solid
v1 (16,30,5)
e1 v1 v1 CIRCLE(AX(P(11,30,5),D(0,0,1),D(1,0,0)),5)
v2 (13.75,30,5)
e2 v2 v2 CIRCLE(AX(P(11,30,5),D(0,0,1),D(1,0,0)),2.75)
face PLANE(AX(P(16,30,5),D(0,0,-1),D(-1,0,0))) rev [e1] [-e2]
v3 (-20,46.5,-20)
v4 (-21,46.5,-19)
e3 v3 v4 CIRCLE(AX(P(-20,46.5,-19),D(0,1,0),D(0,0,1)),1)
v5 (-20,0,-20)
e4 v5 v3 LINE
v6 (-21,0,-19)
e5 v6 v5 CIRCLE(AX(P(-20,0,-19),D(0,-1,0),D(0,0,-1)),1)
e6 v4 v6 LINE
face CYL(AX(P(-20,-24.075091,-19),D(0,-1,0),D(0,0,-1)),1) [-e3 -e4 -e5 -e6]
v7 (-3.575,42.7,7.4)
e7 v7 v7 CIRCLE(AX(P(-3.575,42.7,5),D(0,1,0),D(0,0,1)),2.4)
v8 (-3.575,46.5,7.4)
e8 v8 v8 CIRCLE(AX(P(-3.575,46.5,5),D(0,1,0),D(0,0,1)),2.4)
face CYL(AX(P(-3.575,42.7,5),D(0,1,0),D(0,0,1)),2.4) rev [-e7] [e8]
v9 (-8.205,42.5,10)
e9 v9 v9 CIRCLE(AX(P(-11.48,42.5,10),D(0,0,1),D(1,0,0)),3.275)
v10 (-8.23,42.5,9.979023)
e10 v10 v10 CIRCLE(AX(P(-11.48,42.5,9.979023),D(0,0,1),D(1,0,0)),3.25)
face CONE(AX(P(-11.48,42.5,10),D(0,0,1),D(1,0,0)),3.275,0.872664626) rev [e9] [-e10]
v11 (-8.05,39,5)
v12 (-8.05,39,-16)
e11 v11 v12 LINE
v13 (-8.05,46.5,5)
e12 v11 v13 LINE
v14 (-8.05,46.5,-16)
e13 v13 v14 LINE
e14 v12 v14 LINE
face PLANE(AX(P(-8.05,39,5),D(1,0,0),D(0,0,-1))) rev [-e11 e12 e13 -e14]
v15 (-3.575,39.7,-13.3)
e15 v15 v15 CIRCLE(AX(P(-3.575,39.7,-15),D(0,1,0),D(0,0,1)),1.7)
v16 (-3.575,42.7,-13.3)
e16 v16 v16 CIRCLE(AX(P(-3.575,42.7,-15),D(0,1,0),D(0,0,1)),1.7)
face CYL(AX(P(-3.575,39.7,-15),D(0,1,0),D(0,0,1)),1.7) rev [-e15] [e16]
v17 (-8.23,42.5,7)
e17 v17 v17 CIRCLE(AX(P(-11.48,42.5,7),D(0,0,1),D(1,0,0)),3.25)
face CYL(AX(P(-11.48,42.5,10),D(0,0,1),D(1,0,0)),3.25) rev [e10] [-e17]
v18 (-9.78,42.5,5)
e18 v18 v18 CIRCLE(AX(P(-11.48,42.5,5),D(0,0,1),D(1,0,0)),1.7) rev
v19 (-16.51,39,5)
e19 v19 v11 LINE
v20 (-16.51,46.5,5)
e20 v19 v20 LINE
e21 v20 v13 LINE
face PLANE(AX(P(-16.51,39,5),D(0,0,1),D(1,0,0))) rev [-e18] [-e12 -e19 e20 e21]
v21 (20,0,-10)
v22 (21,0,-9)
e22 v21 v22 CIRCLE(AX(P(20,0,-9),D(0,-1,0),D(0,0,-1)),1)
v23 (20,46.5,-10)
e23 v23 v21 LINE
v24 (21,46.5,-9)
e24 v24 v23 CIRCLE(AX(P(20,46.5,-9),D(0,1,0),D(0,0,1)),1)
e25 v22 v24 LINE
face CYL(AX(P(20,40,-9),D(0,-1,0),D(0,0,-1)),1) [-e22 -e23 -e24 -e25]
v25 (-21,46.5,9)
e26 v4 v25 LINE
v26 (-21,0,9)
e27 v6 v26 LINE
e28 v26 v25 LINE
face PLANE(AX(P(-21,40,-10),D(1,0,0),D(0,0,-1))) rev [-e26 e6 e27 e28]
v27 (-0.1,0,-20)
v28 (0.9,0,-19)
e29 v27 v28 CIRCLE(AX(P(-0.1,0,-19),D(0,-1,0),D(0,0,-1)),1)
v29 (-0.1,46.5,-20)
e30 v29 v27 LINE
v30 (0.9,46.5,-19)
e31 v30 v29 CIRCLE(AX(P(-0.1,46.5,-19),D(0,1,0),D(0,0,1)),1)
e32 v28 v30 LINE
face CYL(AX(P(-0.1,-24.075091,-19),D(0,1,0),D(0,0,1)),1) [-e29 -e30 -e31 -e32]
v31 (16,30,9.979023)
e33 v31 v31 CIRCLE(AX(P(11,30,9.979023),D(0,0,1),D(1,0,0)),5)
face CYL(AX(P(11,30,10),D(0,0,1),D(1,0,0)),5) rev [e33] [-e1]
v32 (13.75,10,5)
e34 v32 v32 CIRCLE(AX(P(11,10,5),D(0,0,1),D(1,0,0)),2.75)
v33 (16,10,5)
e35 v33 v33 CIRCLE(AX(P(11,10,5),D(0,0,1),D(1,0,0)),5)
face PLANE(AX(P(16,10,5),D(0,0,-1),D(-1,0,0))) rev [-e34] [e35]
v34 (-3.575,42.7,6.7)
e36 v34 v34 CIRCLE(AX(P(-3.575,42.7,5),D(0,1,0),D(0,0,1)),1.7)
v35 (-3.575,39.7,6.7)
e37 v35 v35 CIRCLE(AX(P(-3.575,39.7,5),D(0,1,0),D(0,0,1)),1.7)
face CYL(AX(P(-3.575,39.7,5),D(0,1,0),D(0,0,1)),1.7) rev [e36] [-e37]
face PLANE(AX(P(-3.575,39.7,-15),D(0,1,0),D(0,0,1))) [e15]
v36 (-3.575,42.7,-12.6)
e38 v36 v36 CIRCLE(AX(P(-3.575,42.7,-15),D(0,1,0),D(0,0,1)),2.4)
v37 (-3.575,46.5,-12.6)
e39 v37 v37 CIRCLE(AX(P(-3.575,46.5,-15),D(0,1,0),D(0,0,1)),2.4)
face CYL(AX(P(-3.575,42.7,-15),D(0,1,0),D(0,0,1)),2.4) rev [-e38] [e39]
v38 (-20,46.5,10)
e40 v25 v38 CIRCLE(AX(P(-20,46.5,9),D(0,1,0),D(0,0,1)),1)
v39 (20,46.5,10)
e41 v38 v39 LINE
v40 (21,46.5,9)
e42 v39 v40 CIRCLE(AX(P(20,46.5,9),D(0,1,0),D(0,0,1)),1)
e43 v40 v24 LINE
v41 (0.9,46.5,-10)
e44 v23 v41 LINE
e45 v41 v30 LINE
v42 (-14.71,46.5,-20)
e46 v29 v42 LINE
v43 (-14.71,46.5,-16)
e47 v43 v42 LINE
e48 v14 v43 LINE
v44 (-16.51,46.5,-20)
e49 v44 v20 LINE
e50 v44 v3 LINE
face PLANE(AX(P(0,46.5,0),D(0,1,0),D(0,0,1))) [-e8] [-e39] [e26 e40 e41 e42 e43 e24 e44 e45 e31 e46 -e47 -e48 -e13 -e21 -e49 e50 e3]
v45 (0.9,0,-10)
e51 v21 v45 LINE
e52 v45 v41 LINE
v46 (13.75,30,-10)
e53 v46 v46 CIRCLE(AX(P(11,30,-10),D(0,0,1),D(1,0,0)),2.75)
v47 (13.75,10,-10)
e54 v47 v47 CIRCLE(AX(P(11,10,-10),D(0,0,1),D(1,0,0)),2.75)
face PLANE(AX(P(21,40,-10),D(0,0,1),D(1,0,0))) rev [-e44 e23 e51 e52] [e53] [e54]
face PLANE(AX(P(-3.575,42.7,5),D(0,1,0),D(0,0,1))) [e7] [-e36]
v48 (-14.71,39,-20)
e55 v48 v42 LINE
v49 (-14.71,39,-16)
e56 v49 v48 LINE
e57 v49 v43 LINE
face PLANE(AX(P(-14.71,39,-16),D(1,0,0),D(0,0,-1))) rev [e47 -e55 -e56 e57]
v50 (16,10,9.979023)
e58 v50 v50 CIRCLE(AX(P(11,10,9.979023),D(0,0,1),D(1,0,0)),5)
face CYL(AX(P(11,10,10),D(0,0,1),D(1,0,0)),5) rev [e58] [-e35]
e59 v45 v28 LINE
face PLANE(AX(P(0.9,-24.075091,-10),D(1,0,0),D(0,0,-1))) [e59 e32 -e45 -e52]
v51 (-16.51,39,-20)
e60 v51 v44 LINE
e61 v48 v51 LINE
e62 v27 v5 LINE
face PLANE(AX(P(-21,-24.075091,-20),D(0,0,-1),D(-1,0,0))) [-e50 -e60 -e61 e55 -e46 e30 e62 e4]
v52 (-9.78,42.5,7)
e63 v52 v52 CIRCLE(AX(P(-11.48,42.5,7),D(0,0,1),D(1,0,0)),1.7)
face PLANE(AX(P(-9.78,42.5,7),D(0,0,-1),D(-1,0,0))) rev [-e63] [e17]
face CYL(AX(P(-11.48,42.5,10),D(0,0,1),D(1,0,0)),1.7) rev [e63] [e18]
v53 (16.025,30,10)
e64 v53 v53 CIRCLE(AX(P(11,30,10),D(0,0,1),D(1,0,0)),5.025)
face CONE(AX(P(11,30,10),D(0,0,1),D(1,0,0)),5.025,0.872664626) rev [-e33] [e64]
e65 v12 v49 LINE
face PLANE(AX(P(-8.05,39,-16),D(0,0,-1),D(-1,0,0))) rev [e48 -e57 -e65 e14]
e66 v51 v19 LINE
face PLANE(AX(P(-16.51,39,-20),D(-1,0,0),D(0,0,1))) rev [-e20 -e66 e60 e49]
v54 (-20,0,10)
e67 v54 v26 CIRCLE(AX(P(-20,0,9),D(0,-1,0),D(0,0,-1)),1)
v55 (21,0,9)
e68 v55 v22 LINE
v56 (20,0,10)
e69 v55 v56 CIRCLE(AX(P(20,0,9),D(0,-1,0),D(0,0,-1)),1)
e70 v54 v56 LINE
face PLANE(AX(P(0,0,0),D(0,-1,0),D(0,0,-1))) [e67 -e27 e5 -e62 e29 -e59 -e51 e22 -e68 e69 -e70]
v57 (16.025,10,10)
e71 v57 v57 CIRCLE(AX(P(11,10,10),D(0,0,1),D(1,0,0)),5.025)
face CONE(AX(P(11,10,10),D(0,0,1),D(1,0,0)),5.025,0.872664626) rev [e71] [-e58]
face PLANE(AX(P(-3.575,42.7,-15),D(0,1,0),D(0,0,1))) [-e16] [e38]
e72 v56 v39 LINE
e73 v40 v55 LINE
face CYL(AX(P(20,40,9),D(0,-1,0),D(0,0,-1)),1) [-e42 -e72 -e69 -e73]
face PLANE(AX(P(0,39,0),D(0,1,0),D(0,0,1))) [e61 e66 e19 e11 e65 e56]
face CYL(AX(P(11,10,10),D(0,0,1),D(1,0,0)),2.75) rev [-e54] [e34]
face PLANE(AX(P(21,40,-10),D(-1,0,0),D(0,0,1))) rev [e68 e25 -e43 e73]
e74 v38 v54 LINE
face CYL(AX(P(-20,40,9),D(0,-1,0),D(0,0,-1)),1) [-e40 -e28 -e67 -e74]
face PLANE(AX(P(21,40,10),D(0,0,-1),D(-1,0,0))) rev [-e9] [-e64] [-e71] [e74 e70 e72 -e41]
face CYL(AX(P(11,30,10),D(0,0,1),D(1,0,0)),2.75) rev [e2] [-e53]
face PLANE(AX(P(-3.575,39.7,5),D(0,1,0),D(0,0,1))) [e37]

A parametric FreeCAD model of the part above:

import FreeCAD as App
import Part
import Sketcher
Q = App.Units.Quantity


def edges_at(feature, points):
    """Names of the edges that pass closest to the given points."""
    edges = feature.Shape.Edges
    near = lambda p: min(range(len(edges)), key=lambda i: edges[i].distToShape(Part.Vertex(*p))[0])
    return sorted({f"Edge{near(p) + 1}" for p in points})

doc = App.newDocument("Part")
body = doc.addObject("PartDesign::Body", "Body")

sketch1 = body.newObject("Sketcher::SketchObject", "Sketch")
sketch1.AttachmentSupport = (doc.getObject("XZ_Plane"), [""])
sketch1.MapMode = "FlatFace"
sketch1.addGeometry([
    Part.LineSegment(App.Vector(-21, -10, 0), App.Vector(-21, 10, 0)),
    Part.LineSegment(App.Vector(-21, 10, 0), App.Vector(21, 10, 0)),
    Part.LineSegment(App.Vector(21, 10, 0), App.Vector(21, -10, 0)),
    Part.LineSegment(App.Vector(21, -10, 0), App.Vector(-21, -10, 0)),
], False)
sketch1.addConstraint([
    Sketcher.Constraint("Coincident", 0, 2, 1, 1),
    Sketcher.Constraint("Coincident", 1, 2, 2, 1),
    Sketcher.Constraint("Coincident", 2, 2, 3, 1),
    Sketcher.Constraint("Coincident", 3, 2, 0, 1),
    Sketcher.Constraint("Vertical", 0),
    Sketcher.Constraint("Horizontal", 1),
    Sketcher.Constraint("Vertical", 2),
    Sketcher.Constraint("Horizontal", 3),
    Sketcher.Constraint("Symmetric", 0, 2, 2, 2, -1, 1),
    Sketcher.Constraint("DistanceX", 1, 1, 1, 2, Q("42 mm")),
    Sketcher.Constraint("DistanceY", 0, 1, 0, 2, Q("20 mm")),
])
pad1 = body.newObject("PartDesign::Pad", "Pad")
pad1.Profile = sketch1
pad1.Length = 40
pad1.Reversed = True

sketch2 = body.newObject("Sketcher::SketchObject", "Sketch001")
sketch2.AttachmentSupport = (doc.getObject("YZ_Plane"), [""])
sketch2.MapMode = "FlatFace"
sketch2.AttachmentOffset = App.Placement(App.Vector(0, 0, 11), App.Rotation())
sketch2.addGeometry([
    Part.LineSegment(App.Vector(30, -10, 0), App.Vector(30, 10, 0)),
    Part.LineSegment(App.Vector(30, 10, 0), App.Vector(24.975, 10, 0)),
    Part.LineSegment(App.Vector(24.975, 10, 0), App.Vector(25, 9.979, 0)),
    Part.LineSegment(App.Vector(25, 9.979, 0), App.Vector(25, 5, 0)),
    Part.LineSegment(App.Vector(25, 5, 0), App.Vector(27.25, 5, 0)),
    Part.LineSegment(App.Vector(27.25, 5, 0), App.Vector(27.25, -10, 0)),
    Part.LineSegment(App.Vector(27.25, -10, 0), App.Vector(30, -10, 0)),
], False)
sketch2.addGeometry(Part.LineSegment(App.Vector(30, 10, 0), App.Vector(30, -10, 0)), True)
sketch2.addConstraint([
    Sketcher.Constraint("Coincident", 0, 2, 1, 1),
    Sketcher.Constraint("Coincident", 1, 2, 2, 1),
    Sketcher.Constraint("Coincident", 2, 2, 3, 1),
    Sketcher.Constraint("Coincident", 3, 2, 4, 1),
    Sketcher.Constraint("Coincident", 4, 2, 5, 1),
    Sketcher.Constraint("Coincident", 5, 2, 6, 1),
    Sketcher.Constraint("Coincident", 6, 2, 0, 1),
    Sketcher.Constraint("Vertical", 0),
    Sketcher.Constraint("Horizontal", 1),
    Sketcher.Constraint("Vertical", 3),
    Sketcher.Constraint("Horizontal", 4),
    Sketcher.Constraint("Vertical", 5),
    Sketcher.Constraint("Horizontal", 6),
    Sketcher.Constraint("Vertical", 7),
    Sketcher.Constraint("Coincident", 7, 1, 0, 2),
    Sketcher.Constraint("Horizontal", 5, 2, 7, 2),
    Sketcher.Constraint("DistanceY", 0, 1, 0, 2, Q("20 mm")),
    Sketcher.Constraint("DistanceY", 5, 2, 5, 1, Q("15 mm")),
    Sketcher.Constraint("Angle", 2, Q("-40 deg")),
    Sketcher.Constraint("DistanceX", -1, 1, 0, 2, Q("30 mm")),
    Sketcher.Constraint("DistanceY", -1, 1, 0, 2, Q("10 mm")),
    Sketcher.Constraint("DistanceX", -1, 1, 2, 2, Q("25 mm")),
    Sketcher.Constraint("DistanceX", 4, 1, 4, 2, Q("2.25 mm")),
    Sketcher.Constraint("DistanceX", 1, 2, 1, 1, Q("5.025 mm")),
])
groove = body.newObject("PartDesign::Groove", "Groove")
groove.Profile = sketch2
groove.ReferenceAxis = (sketch2, ["Axis0"])
groove.Angle = 360
doc.recompute()

linearpattern = body.newObject("PartDesign::LinearPattern", "LinearPattern")
linearpattern.Originals = [groove]
linearpattern.Direction = (doc.getObject("Y_Axis"), [""])
linearpattern.Mode = "offset"
linearpattern.Offset = 20
linearpattern.Occurrences = 2
linearpattern.Reversed = True
body.Tip = linearpattern

sketch3 = body.newObject("Sketcher::SketchObject", "Sketch002")
sketch3.AttachmentSupport = (doc.getObject("XZ_Plane"), [""])
sketch3.MapMode = "FlatFace"
sketch3.AttachmentOffset = App.Placement(App.Vector(0, 0, -40), App.Rotation())
sketch3.addGeometry([
    Part.LineSegment(App.Vector(-21, -10, 0), App.Vector(-21, 10, 0)),
    Part.LineSegment(App.Vector(-21, 10, 0), App.Vector(21, 10, 0)),
    Part.LineSegment(App.Vector(21, 10, 0), App.Vector(21, -10, 0)),
    Part.LineSegment(App.Vector(21, -10, 0), App.Vector(-21, -10, 0)),
], False)
sketch3.addConstraint([
    Sketcher.Constraint("Coincident", 0, 2, 1, 1),
    Sketcher.Constraint("Coincident", 1, 2, 2, 1),
    Sketcher.Constraint("Coincident", 2, 2, 3, 1),
    Sketcher.Constraint("Coincident", 3, 2, 0, 1),
    Sketcher.Constraint("Vertical", 0),
    Sketcher.Constraint("Horizontal", 1),
    Sketcher.Constraint("Vertical", 2),
    Sketcher.Constraint("Horizontal", 3),
    Sketcher.Constraint("Symmetric", 0, 2, 2, 2, -1, 1),
    Sketcher.Constraint("DistanceX", 1, 1, 1, 2, Q("42 mm")),
    Sketcher.Constraint("DistanceY", 0, 1, 0, 2, Q("20 mm")),
])
pad2 = body.newObject("PartDesign::Pad", "Pad001")
pad2.Profile = sketch3
pad2.Length = 6.5
pad2.Reversed = True

sketch4 = body.newObject("Sketcher::SketchObject", "Sketch003")
sketch4.AttachmentSupport = (doc.getObject("XZ_Plane"), [""])
sketch4.MapMode = "FlatFace"
sketch4.AttachmentOffset = App.Placement(App.Vector(0, 0, -46.5), App.Rotation())
sketch4.addGeometry([
    Part.LineSegment(App.Vector(-21, -20, 0), App.Vector(-21, -10, 0)),
    Part.LineSegment(App.Vector(-21, -10, 0), App.Vector(1, -10, 0)),
    Part.LineSegment(App.Vector(1, -10, 0), App.Vector(1, -20, 0)),
    Part.LineSegment(App.Vector(1, -20, 0), App.Vector(-21, -20, 0)),
], False)
sketch4.addConstraint([
    Sketcher.Constraint("Coincident", 0, 2, 1, 1),
    Sketcher.Constraint("Coincident", 1, 2, 2, 1),
    Sketcher.Constraint("Coincident", 2, 2, 3, 1),
    Sketcher.Constraint("Coincident", 3, 2, 0, 1),
    Sketcher.Constraint("Vertical", 0),
    Sketcher.Constraint("Horizontal", 1),
    Sketcher.Constraint("Vertical", 2),
    Sketcher.Constraint("Horizontal", 3),
    Sketcher.Constraint("DistanceY", 0, 1, 0, 2, Q("10 mm")),
    Sketcher.Constraint("DistanceX", 1, 1, 1, 2, Q("21.9 mm")),
    Sketcher.Constraint("DistanceX", 0, 2, -1, 1, Q("21 mm")),
    Sketcher.Constraint("DistanceY", 0, 2, -1, 1, Q("10 mm")),
])
pad3 = body.newObject("PartDesign::Pad", "Pad002")
pad3.Profile = sketch4
pad3.Length = 46.5

sketch5 = body.newObject("Sketcher::SketchObject", "Sketch004")
sketch5.AttachmentSupport = (doc.getObject("XZ_Plane"), [""])
sketch5.MapMode = "FlatFace"
sketch5.AttachmentOffset = App.Placement(App.Vector(0, 0, -46.5), App.Rotation())
sketch5.addGeometry([
    Part.LineSegment(App.Vector(-16.5, -20, 0), App.Vector(-16.5, 5, 0)),
    Part.LineSegment(App.Vector(-16.5, 5, 0), App.Vector(-8.1, 5, 0)),
    Part.LineSegment(App.Vector(-8.1, 5, 0), App.Vector(-8.1, -16, 0)),
    Part.LineSegment(App.Vector(-8.1, -16, 0), App.Vector(-14.7, -16, 0)),
    Part.LineSegment(App.Vector(-14.7, -16, 0), App.Vector(-14.7, -20, 0)),
    Part.LineSegment(App.Vector(-14.7, -20, 0), App.Vector(-16.5, -20, 0)),
], False)
sketch5.addConstraint([
    Sketcher.Constraint("Coincident", 0, 2, 1, 1),
    Sketcher.Constraint("Coincident", 1, 2, 2, 1),
    Sketcher.Constraint("Coincident", 2, 2, 3, 1),
    Sketcher.Constraint("Coincident", 3, 2, 4, 1),
    Sketcher.Constraint("Coincident", 4, 2, 5, 1),
    Sketcher.Constraint("Coincident", 5, 2, 0, 1),
    Sketcher.Constraint("Vertical", 0),
    Sketcher.Constraint("Horizontal", 1),
    Sketcher.Constraint("Vertical", 2),
    Sketcher.Constraint("Horizontal", 3),
    Sketcher.Constraint("Vertical", 4),
    Sketcher.Constraint("Horizontal", 5),
    Sketcher.Constraint("DistanceY", 0, 1, 0, 2, Q("25 mm")),
    Sketcher.Constraint("DistanceY", 2, 2, 2, 1, Q("21 mm")),
    Sketcher.Constraint("DistanceX", 5, 2, 5, 1, Q("1.8 mm")),
    Sketcher.Constraint("DistanceY", -1, 1, 0, 2, Q("5 mm")),
    Sketcher.Constraint("DistanceX", 1, 1, 1, 2, Q("8.46 mm")),
    Sketcher.Constraint("DistanceX", 0, 2, -1, 1, Q("16.51 mm")),
])
pocket1 = body.newObject("PartDesign::Pocket", "Pocket")
pocket1.Profile = sketch5
pocket1.Length = 7.5
pocket1.Reversed = True
doc.recompute()

fillet = body.newObject("PartDesign::Fillet", "Fillet")
fillet.Base = (pocket1, edges_at(pocket1, [
    (0.9, 23.25, -20),
    (-21, 23.25, -20),
    (21, 23.25, -10),
    (21, 23.25, 10),
    (-21, 23.25, 10),
]))
fillet.Radius = 1

sketch6 = body.newObject("Sketcher::SketchObject", "Sketch005")
sketch6.AttachmentSupport = (doc.getObject("YZ_Plane"), [""])
sketch6.MapMode = "FlatFace"
sketch6.AttachmentOffset = App.Placement(App.Vector(0, 0, -11.48), App.Rotation())
sketch6.addGeometry([
    Part.LineSegment(App.Vector(42.5, 3.979, 0), App.Vector(42.5, 10, 0)),
    Part.LineSegment(App.Vector(42.5, 10, 0), App.Vector(39.225, 10, 0)),
    Part.LineSegment(App.Vector(39.225, 10, 0), App.Vector(39.25, 9.979, 0)),
    Part.LineSegment(App.Vector(39.25, 9.979, 0), App.Vector(39.25, 7, 0)),
    Part.LineSegment(App.Vector(39.25, 7, 0), App.Vector(40.8, 7, 0)),
    Part.LineSegment(App.Vector(40.8, 7, 0), App.Vector(40.8, 5, 0)),
    Part.LineSegment(App.Vector(40.8, 5, 0), App.Vector(42.5, 3.979, 0)),
], False)
sketch6.addGeometry(Part.LineSegment(App.Vector(42.5, 10, 0), App.Vector(42.5, 3.979, 0)), True)
sketch6.addConstraint([
    Sketcher.Constraint("Coincident", 0, 2, 1, 1),
    Sketcher.Constraint("Coincident", 1, 2, 2, 1),
    Sketcher.Constraint("Coincident", 2, 2, 3, 1),
    Sketcher.Constraint("Coincident", 3, 2, 4, 1),
    Sketcher.Constraint("Coincident", 4, 2, 5, 1),
    Sketcher.Constraint("Coincident", 5, 2, 6, 1),
    Sketcher.Constraint("Coincident", 6, 2, 0, 1),
    Sketcher.Constraint("Vertical", 0),
    Sketcher.Constraint("Horizontal", 1),
    Sketcher.Constraint("Vertical", 3),
    Sketcher.Constraint("Horizontal", 4),
    Sketcher.Constraint("Vertical", 5),
    Sketcher.Constraint("Vertical", 7),
    Sketcher.Constraint("Coincident", 7, 1, 0, 2),
    Sketcher.Constraint("Equal", 0, 7),
    Sketcher.Constraint("DistanceY", 5, 2, 5, 1, Q("2 mm")),
    Sketcher.Constraint("Angle", 2, Q("-40 deg")),
    Sketcher.Constraint("Angle", 6, Q("-31 deg")),
    Sketcher.Constraint("DistanceY", -1, 1, 0, 2, Q("10 mm")),
    Sketcher.Constraint("DistanceY", -1, 1, 3, 2, Q("7 mm")),
    Sketcher.Constraint("DistanceX", 4, 1, 4, 2, Q("1.55 mm")),
    Sketcher.Constraint("DistanceX", -1, 1, 0, 2, Q("42.5 mm")),
    Sketcher.Constraint("DistanceX", -1, 1, 4, 2, Q("40.8 mm")),
    Sketcher.Constraint("DistanceX", 1, 2, 1, 1, Q("3.275 mm")),
])
groove2 = body.newObject("PartDesign::Groove", "Groove001")
groove2.Profile = sketch6
groove2.ReferenceAxis = (sketch6, ["Axis0"])
groove2.Angle = 360

sketch7 = body.newObject("Sketcher::SketchObject", "Sketch006")
sketch7.AttachmentSupport = (doc.getObject("XZ_Plane"), [""])
sketch7.MapMode = "FlatFace"
sketch7.AttachmentOffset = App.Placement(App.Vector(0, 0, -46.5), App.Rotation())
sketch7.addGeometry([
    Part.Circle(App.Vector(-3.6, -15, 0), App.Vector(0, 0, 1), 2.4),
    Part.Circle(App.Vector(-3.6, 5, 0), App.Vector(0, 0, 1), 2.4),
], False)
sketch7.addConstraint([
    Sketcher.Constraint("Equal", 0, 1),
    Sketcher.Constraint("Vertical", 0, 3, 1, 3),
    Sketcher.Constraint("Diameter", 0, Q("4.8 mm")),
    Sketcher.Constraint("DistanceY", 0, 3, -1, 1, Q("15 mm")),
    Sketcher.Constraint("DistanceY", -1, 1, 1, 3, Q("5 mm")),
    Sketcher.Constraint("DistanceX", 0, 3, -1, 1, Q("3.575 mm")),
])
pocket2 = body.newObject("PartDesign::Pocket", "Pocket001")
pocket2.Profile = sketch7
pocket2.Length = 3.8
pocket2.Reversed = True

sketch8 = body.newObject("Sketcher::SketchObject", "Sketch007")
sketch8.AttachmentSupport = (doc.getObject("XZ_Plane"), [""])
sketch8.MapMode = "FlatFace"
sketch8.AttachmentOffset = App.Placement(App.Vector(0, 0, -42.7), App.Rotation())
sketch8.addGeometry([
    Part.Circle(App.Vector(-3.6, -15, 0), App.Vector(0, 0, 1), 1.7),
    Part.Circle(App.Vector(-3.6, 5, 0), App.Vector(0, 0, 1), 1.7),
], False)
sketch8.addConstraint([
    Sketcher.Constraint("Equal", 0, 1),
    Sketcher.Constraint("Vertical", 0, 3, 1, 3),
    Sketcher.Constraint("Diameter", 0, Q("3.4 mm")),
    Sketcher.Constraint("DistanceY", 0, 3, -1, 1, Q("15 mm")),
    Sketcher.Constraint("DistanceY", -1, 1, 1, 3, Q("5 mm")),
    Sketcher.Constraint("DistanceX", 0, 3, -1, 1, Q("3.575 mm")),
])
pocket3 = body.newObject("PartDesign::Pocket", "Pocket002")
pocket3.Profile = sketch8
pocket3.Length = 3
pocket3.Reversed = True

doc.recompute()
